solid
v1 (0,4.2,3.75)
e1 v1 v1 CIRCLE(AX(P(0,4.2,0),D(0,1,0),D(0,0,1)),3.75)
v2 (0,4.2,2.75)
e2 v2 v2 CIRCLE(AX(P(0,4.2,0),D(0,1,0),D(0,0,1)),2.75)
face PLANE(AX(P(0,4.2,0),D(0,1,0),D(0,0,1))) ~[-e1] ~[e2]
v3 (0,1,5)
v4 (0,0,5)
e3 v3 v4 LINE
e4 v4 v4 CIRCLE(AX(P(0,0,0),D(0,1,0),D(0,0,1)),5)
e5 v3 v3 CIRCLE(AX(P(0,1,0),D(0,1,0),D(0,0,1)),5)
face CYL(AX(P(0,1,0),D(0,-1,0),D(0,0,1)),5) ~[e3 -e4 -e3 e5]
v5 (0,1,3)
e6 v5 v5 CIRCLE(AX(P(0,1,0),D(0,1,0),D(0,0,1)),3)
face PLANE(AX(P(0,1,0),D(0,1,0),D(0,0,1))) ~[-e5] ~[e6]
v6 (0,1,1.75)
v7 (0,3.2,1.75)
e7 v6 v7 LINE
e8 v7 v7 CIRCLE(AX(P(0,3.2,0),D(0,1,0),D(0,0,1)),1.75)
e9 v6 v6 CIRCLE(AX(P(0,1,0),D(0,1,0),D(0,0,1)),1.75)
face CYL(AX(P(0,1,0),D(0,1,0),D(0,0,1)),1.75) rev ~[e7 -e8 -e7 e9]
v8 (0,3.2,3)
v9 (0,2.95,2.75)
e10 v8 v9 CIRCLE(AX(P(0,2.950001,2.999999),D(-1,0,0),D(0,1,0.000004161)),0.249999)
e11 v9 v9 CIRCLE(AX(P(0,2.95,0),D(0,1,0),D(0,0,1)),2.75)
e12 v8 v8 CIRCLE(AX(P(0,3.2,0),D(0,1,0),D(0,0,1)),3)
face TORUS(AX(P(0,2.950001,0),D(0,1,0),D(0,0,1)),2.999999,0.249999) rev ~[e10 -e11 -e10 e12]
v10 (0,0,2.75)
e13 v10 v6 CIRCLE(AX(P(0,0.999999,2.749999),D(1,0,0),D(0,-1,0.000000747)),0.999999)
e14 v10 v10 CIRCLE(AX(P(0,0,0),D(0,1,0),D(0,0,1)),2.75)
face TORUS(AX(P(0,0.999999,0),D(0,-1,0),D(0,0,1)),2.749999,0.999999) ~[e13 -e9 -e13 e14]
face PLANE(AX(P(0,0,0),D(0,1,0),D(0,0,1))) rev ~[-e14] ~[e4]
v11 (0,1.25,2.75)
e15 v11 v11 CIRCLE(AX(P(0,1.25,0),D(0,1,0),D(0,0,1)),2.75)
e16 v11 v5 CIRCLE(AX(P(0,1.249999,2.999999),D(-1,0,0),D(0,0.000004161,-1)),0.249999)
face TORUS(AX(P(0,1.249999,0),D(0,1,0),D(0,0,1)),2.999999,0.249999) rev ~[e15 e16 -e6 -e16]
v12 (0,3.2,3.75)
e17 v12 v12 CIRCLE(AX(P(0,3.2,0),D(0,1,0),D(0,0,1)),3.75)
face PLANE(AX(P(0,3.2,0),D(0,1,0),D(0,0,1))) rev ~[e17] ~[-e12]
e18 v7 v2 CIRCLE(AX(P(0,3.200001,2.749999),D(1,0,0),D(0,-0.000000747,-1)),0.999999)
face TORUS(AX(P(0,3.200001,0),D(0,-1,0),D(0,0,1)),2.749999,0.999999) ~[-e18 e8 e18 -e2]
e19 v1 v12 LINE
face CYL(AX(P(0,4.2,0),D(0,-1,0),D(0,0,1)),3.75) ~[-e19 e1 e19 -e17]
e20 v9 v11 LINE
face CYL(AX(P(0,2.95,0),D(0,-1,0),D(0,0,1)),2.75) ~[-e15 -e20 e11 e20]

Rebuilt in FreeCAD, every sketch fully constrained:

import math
import FreeCAD as App
import Part
import Sketcher
from FreeCAD import Vector

doc = App.newDocument("Part")
params = doc.addObject("Spreadsheet::Sheet", "Params")
for row, (alias, value) in enumerate([
    ("sketch1_radius", "0.999999 mm"),
    ("sketch1_height", "2 mm"),
    ("sketch1_radius2", "0.249999 mm"),
    ("sketch1_width", "2.2 mm"),
    ("sketch1_width2", "1.7 mm"),
    ("revolution_angle", "360 deg"),
], start=1):
    params.set(f"A{row}", alias)
    params.set(f"B{row}", "=" + value)
    params.setAlias(f"B{row}", alias)

body = doc.addObject("PartDesign::Body", "Body")

sketch1 = body.newObject("Sketcher::SketchObject", "Sketch")
sketch1.AttachmentSupport = (doc.getObject("YZ_Plane"), [""])
sketch1.MapMode = "FlatFace"
sketch1.addGeometry([
    Part.LineSegment(Vector(1, 3, 0), Vector(1, 5, 0)),
    Part.LineSegment(Vector(1, 5, 0), Vector(0, 5, 0)),
    Part.LineSegment(Vector(0, 5, 0), Vector(0, 2.75, 0)),
    Part.ArcOfCircle(Part.Circle(Vector(0.999999, 2.749999, 0), Vector(0, 0, 1), 0.999999), math.radians(179.999957), math.radians(270.000043)),
    Part.LineSegment(Vector(1, 1.75, 0), Vector(3.2, 1.75, 0)),
    Part.ArcOfCircle(Part.Circle(Vector(3.200001, 2.749999, 0), Vector(0, 0, 1), 0.999999), math.radians(-90.000043), math.radians(0.000043)),
    Part.LineSegment(Vector(4.2, 2.75, 0), Vector(4.2, 3.75, 0)),
    Part.LineSegment(Vector(4.2, 3.75, 0), Vector(3.2, 3.75, 0)),
    Part.LineSegment(Vector(3.2, 3.75, 0), Vector(3.2, 3, 0)),
    Part.ArcOfCircle(Part.Circle(Vector(2.950001, 2.999999, 0), Vector(0, 0, 1), 0.249999), math.radians(-90.000238), math.radians(0.000238)),
    Part.LineSegment(Vector(2.95, 2.75, 0), Vector(1.25, 2.75, 0)),
    Part.ArcOfCircle(Part.Circle(Vector(1.249999, 2.999999, 0), Vector(0, 0, 1), 0.249999), math.radians(179.999762), math.radians(270.000238)),
], False)
sketch1.addConstraint([
    Sketcher.Constraint("Coincident", 0, 2, 1, 1),
    Sketcher.Constraint("Coincident", 1, 2, 2, 1),
    Sketcher.Constraint("Tangent", 2, 2, 3, 1),
    Sketcher.Constraint("Tangent", 3, 2, 4, 1),
    Sketcher.Constraint("Tangent", 4, 2, 5, 1),
    Sketcher.Constraint("Tangent", 5, 2, 6, 1),
    Sketcher.Constraint("Coincident", 6, 2, 7, 1),
    Sketcher.Constraint("Coincident", 7, 2, 8, 1),
    Sketcher.Constraint("Coincident", 8, 2, 9, 2),
    Sketcher.Constraint("Coincident", 9, 1, 10, 1),
    Sketcher.Constraint("Coincident", 10, 2, 11, 2),
    Sketcher.Constraint("Coincident", 11, 1, 0, 1),
    Sketcher.Constraint("Vertical", 0),
    Sketcher.Constraint("Horizontal", 1),
    Sketcher.Constraint("Vertical", 2),
    Sketcher.Constraint("Horizontal", 4),
    Sketcher.Constraint("Vertical", 6),
    Sketcher.Constraint("Horizontal", 7),
    Sketcher.Constraint("Vertical", 8),
    Sketcher.Constraint("Horizontal", 10),
    Sketcher.Constraint("Equal", 3, 5),
    Sketcher.Constraint("Equal", 9, 11),
    Sketcher.Constraint("PointOnObject", 1, 2, -2),
    Sketcher.Constraint("Horizontal", 11, 3, 8, 2),
    Sketcher.Constraint("Horizontal", 5, 2, 9, 1),
    Sketcher.Constraint("Horizontal", 8, 2, 11, 1),
    Sketcher.Constraint("Vertical", 3, 3, 0, 2),
    Sketcher.Constraint("Vertical", 4, 2, 7, 2),
    Sketcher.Constraint("Vertical", 11, 3, 10, 2),
    Sketcher.Constraint("Equal", 7, 6),
    Sketcher.Constraint("Radius", 3, 0.999999),
    Sketcher.Constraint("DistanceY", 0, 1, 0, 2, 2.0),
    Sketcher.Constraint("Radius", 9, 0.249999),
    Sketcher.Constraint("DistanceX", 4, 1, 4, 2, 2.2),
    Sketcher.Constraint("DistanceX", 10, 2, 10, 1, 1.7),
    Sketcher.Constraint("DistanceY", -1, 1, 9, 3, 2.999999),
])
sketch1.setExpression("Constraints[30]", "Params.sketch1_radius")
sketch1.setExpression("Constraints[31]", "Params.sketch1_height")
sketch1.setExpression("Constraints[32]", "Params.sketch1_radius2")
sketch1.setExpression("Constraints[33]", "Params.sketch1_width")
sketch1.setExpression("Constraints[34]", "Params.sketch1_width2")
revolution = body.newObject("PartDesign::Revolution", "Revolution")
revolution.Profile = sketch1
revolution.ReferenceAxis = (sketch1, ["H_Axis"])
revolution.setExpression("Angle", "Params.revolution_angle")

doc.recompute()
